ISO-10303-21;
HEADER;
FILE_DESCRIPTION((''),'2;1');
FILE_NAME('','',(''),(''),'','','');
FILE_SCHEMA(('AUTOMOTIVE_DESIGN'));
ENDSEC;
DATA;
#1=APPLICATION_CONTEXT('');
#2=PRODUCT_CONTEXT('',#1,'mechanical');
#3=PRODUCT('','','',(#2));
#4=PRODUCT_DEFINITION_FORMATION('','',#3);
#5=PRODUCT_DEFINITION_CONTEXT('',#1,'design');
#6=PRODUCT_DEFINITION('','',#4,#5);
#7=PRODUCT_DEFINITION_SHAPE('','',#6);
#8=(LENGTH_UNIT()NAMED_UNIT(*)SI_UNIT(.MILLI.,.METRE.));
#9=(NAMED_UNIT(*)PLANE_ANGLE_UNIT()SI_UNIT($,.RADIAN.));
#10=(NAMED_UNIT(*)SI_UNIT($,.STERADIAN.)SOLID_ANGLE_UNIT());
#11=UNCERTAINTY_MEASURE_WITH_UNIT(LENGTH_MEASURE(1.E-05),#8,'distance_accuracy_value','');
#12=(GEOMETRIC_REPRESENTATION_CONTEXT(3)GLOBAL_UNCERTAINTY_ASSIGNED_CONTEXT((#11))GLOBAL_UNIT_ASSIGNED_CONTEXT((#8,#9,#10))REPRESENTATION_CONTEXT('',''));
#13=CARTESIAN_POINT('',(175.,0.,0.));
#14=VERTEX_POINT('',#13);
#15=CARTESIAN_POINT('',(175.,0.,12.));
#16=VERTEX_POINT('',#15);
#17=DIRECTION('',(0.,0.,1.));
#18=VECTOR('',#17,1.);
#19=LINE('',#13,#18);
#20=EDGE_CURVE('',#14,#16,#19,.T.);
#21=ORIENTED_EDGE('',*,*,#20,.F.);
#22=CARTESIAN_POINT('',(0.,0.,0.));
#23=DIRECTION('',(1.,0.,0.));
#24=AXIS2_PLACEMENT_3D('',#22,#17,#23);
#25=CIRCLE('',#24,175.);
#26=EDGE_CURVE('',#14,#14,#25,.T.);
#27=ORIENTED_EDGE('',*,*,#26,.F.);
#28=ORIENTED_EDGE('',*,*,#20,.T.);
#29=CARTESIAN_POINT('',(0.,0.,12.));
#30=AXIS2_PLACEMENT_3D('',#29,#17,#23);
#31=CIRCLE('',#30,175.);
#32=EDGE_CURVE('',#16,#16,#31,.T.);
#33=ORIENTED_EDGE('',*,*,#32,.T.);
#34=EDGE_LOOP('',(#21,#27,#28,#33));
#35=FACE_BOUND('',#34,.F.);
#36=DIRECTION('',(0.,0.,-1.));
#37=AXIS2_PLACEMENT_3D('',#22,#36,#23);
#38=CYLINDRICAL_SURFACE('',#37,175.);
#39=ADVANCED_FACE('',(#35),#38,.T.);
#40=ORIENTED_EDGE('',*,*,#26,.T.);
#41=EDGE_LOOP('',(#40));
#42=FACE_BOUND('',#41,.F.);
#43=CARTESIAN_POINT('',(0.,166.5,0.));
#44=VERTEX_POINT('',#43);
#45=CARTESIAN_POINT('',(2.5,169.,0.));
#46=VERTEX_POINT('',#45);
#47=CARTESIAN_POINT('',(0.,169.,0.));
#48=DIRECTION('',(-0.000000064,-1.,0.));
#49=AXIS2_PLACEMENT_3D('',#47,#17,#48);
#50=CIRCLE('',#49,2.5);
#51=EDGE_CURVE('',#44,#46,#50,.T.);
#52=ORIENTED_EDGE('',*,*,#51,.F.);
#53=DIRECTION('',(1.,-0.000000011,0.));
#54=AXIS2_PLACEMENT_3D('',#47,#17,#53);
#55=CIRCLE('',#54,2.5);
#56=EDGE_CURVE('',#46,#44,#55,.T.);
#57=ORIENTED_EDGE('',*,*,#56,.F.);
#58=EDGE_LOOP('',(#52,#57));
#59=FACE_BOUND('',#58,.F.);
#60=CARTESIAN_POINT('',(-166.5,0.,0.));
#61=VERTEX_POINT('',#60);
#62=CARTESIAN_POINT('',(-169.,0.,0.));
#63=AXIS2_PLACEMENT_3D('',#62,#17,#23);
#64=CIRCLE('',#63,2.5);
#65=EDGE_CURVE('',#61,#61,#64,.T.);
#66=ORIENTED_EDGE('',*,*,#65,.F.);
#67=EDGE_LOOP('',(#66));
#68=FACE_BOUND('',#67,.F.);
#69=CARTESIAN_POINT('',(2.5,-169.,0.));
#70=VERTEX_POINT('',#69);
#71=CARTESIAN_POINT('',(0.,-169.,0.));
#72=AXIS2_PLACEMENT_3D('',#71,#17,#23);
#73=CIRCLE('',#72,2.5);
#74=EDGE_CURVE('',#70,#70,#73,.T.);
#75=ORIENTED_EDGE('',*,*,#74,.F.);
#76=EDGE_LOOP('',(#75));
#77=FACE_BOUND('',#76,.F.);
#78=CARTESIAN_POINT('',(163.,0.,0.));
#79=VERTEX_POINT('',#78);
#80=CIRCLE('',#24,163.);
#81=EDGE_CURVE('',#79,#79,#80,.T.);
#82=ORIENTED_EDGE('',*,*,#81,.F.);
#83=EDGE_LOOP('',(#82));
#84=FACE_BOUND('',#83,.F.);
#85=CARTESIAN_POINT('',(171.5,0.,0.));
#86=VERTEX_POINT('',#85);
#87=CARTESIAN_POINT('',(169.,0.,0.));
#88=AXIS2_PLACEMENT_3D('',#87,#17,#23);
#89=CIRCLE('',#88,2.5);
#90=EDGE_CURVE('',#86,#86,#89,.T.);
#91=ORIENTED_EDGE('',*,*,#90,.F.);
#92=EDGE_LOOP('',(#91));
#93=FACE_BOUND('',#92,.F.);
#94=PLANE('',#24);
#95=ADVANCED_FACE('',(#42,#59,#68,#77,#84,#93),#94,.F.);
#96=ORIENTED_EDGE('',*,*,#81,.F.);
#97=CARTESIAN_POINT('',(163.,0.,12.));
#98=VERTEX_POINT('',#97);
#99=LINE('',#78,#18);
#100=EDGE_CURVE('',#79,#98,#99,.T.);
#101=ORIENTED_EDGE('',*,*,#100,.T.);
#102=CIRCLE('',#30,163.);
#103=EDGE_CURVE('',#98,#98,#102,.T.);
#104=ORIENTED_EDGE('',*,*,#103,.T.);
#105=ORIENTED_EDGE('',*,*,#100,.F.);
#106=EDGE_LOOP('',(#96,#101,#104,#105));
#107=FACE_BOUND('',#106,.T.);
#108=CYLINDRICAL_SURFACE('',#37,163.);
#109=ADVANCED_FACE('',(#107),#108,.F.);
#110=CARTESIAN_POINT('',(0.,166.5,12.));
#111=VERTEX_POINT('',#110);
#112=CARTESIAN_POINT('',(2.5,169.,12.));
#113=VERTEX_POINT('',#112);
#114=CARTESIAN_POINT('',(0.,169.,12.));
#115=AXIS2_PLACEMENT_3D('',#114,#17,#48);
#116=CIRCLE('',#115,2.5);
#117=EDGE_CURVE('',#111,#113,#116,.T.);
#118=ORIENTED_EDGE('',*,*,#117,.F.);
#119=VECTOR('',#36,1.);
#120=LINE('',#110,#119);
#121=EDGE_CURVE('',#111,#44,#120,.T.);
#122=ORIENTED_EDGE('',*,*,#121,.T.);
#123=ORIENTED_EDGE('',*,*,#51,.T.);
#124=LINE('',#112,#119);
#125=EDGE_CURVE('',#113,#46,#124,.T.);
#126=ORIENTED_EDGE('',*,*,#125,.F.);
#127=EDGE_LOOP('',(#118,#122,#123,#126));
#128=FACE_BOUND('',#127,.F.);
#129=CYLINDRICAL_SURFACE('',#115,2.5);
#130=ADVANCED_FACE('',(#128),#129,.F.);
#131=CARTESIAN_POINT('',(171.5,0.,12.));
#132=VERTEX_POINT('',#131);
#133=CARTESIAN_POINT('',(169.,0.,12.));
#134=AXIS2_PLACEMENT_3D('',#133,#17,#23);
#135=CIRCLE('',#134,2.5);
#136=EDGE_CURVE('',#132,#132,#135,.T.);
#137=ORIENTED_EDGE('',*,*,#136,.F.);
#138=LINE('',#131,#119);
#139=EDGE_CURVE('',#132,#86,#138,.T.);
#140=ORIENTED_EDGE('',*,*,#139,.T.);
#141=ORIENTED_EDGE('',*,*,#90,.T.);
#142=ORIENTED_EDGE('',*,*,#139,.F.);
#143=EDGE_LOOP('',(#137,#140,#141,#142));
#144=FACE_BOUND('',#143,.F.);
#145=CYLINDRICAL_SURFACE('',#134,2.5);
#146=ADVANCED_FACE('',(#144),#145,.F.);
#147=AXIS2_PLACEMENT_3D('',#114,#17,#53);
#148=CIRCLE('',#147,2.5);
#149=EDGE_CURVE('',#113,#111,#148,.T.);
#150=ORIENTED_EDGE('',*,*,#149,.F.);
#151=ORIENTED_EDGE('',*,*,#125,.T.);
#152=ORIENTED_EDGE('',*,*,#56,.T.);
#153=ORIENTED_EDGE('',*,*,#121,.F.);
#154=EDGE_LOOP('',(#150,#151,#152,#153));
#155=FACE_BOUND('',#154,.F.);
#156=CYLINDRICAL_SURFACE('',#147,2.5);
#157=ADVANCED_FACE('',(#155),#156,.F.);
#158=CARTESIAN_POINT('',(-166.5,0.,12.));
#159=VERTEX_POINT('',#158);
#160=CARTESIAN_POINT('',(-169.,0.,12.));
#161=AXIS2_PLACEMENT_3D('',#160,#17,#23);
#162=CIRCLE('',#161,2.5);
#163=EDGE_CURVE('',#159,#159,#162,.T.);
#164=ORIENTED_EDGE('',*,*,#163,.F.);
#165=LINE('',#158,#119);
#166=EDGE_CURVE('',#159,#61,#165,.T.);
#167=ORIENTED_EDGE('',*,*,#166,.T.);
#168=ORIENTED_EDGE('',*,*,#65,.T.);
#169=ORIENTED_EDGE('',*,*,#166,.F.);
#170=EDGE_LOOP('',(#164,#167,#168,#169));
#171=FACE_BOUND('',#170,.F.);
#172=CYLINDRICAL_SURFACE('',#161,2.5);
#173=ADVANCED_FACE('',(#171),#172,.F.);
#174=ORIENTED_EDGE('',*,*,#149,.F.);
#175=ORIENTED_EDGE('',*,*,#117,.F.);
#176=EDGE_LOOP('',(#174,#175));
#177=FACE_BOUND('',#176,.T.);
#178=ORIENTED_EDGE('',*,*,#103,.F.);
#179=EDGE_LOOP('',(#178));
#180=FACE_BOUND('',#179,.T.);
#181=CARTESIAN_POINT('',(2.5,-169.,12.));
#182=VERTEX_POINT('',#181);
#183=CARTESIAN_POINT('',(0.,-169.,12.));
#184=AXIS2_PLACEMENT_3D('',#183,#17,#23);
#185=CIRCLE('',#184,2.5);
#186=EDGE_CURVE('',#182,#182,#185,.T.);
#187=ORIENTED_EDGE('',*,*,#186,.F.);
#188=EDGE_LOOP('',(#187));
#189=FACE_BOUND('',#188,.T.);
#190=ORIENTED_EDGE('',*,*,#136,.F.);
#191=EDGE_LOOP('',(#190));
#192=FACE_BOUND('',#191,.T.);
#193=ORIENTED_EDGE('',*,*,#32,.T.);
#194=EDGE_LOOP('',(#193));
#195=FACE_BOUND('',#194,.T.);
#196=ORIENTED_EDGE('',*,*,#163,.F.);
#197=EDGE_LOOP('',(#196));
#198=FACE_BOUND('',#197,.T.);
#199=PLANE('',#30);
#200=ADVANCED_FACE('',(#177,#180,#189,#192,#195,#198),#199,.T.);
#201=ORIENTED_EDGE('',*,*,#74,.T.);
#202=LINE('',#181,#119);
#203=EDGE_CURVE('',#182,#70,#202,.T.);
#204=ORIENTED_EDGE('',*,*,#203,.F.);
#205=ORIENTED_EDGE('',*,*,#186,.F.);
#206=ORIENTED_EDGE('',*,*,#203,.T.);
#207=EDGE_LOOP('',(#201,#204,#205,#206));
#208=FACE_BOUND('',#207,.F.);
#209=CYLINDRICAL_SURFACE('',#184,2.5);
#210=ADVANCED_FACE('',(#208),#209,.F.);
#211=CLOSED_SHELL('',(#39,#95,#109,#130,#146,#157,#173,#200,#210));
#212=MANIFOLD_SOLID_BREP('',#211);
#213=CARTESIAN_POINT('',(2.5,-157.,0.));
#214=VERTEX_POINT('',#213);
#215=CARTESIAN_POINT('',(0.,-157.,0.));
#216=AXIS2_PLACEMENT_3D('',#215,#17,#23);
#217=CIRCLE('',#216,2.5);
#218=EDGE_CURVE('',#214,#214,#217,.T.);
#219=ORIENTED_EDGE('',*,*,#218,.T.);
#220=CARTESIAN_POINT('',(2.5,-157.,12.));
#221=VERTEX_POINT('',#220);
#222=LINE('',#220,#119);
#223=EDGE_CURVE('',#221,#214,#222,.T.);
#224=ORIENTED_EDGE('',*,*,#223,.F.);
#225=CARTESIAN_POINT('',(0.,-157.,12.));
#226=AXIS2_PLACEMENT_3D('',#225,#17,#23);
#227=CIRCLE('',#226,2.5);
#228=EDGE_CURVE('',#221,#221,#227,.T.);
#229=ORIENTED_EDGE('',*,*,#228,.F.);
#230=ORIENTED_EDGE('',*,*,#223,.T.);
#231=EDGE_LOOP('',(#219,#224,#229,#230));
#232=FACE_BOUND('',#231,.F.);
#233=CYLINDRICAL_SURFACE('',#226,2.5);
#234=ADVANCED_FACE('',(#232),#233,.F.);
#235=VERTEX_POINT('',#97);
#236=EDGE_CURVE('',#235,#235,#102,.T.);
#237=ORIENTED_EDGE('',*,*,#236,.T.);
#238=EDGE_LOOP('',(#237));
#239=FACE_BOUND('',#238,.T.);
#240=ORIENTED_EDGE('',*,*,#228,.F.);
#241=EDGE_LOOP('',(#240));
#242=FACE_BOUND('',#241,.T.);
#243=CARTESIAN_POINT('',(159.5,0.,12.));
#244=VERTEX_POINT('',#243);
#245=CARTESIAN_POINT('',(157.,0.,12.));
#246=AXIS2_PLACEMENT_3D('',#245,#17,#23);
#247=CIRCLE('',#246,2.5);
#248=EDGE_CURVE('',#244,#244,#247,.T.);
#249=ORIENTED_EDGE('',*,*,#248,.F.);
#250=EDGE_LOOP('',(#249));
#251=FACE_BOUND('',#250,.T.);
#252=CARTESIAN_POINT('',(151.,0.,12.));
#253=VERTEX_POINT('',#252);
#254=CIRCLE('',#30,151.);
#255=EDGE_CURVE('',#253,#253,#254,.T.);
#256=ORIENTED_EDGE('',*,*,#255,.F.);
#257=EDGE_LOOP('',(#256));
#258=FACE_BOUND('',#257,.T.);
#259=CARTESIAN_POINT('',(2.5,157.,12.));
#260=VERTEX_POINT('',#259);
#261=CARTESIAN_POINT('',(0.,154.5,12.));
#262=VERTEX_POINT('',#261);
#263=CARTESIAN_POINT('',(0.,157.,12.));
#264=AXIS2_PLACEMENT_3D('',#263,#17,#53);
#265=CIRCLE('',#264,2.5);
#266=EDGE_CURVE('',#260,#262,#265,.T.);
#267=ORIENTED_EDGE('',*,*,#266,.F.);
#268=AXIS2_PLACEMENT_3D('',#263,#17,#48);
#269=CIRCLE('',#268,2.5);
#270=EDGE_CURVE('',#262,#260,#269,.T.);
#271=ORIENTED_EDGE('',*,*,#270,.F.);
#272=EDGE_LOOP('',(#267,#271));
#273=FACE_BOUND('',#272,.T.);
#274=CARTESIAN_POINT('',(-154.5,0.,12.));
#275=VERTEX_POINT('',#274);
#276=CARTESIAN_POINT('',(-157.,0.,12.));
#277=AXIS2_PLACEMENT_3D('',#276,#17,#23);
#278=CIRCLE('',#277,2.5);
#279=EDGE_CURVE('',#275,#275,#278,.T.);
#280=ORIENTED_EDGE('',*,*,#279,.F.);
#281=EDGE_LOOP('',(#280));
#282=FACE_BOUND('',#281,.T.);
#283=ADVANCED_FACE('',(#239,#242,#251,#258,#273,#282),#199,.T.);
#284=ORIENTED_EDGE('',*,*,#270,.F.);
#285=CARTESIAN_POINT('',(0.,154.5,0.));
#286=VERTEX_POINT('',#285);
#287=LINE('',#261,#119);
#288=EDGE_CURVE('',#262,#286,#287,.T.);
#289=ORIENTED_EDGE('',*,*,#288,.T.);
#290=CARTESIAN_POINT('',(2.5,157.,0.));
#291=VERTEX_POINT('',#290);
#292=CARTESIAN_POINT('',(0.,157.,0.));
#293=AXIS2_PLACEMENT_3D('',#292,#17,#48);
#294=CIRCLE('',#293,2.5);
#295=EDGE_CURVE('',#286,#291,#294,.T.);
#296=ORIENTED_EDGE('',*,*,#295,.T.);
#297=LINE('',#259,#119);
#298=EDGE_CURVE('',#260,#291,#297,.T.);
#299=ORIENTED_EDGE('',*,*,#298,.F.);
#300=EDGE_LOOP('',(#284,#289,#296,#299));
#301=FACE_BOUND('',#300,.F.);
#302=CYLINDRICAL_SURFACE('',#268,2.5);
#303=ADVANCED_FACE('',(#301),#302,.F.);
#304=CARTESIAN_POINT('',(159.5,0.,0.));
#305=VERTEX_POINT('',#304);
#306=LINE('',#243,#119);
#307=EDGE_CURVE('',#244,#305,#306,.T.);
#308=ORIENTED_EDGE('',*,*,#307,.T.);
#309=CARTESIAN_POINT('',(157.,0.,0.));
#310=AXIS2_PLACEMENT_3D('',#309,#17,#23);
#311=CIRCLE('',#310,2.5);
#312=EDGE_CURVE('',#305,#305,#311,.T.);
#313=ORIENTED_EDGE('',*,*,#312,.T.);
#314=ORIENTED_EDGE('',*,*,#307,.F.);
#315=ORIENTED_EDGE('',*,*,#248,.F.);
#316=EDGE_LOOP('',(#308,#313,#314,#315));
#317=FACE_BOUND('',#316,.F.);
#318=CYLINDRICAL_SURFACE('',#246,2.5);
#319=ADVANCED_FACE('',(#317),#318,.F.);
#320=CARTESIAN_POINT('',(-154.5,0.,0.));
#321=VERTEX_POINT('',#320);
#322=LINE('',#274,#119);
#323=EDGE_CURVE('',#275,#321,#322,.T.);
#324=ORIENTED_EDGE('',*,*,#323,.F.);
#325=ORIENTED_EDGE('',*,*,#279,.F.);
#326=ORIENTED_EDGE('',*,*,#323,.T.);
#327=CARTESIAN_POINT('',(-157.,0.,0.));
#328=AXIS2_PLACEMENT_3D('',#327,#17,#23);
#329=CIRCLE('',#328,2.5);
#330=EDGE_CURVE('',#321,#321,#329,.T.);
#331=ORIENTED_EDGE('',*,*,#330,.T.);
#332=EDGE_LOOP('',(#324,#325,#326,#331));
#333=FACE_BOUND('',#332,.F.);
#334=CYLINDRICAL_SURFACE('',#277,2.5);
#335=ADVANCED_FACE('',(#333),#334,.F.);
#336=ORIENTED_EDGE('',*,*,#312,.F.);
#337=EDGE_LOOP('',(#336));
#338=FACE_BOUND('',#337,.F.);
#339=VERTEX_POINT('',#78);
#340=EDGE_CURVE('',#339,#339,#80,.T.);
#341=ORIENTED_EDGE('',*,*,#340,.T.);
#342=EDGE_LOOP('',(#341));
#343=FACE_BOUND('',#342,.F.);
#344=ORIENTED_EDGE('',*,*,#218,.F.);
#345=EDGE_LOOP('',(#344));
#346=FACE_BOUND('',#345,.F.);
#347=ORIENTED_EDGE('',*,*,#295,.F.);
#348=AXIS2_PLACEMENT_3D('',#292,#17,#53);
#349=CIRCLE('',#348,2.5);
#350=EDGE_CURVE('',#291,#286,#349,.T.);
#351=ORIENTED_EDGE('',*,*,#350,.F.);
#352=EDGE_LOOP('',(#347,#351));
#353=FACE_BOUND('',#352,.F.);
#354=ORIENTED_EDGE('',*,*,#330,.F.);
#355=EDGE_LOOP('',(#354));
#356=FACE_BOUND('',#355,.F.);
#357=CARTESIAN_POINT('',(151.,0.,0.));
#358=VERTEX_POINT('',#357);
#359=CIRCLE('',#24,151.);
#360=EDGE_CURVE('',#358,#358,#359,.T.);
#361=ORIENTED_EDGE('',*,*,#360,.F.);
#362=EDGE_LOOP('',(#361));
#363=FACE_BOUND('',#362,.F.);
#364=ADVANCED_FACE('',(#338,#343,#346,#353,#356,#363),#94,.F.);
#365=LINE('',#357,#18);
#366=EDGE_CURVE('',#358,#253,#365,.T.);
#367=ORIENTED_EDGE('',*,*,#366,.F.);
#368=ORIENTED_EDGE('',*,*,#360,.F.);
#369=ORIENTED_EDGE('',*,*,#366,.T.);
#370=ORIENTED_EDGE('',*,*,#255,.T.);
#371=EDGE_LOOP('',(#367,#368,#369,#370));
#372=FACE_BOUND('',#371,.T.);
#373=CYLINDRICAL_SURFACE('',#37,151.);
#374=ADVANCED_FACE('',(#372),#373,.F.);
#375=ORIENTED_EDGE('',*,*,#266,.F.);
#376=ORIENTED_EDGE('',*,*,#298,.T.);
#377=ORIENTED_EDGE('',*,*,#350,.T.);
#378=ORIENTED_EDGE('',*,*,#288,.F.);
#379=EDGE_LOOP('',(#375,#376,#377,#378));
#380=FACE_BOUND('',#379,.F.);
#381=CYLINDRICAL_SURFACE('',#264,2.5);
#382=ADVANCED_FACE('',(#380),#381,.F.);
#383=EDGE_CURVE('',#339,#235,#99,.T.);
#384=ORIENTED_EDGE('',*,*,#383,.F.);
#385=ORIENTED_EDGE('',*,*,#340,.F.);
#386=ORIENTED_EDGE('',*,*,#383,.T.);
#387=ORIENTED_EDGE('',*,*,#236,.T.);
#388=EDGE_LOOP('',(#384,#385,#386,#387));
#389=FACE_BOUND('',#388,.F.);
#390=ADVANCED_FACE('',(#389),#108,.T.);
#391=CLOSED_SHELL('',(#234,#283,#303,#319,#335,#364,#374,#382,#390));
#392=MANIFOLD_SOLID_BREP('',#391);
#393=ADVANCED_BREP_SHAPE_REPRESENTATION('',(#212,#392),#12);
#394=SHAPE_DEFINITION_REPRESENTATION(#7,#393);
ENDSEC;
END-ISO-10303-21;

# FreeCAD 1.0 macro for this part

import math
import FreeCAD as App
import Part
import Sketcher
from FreeCAD import Vector
Q = App.Units.Quantity

doc = App.newDocument("Part")
body = doc.addObject("PartDesign::Body", "Body")

# Sketch on XY plane
sketch1 = doc.addObject("Sketcher::SketchObject", "Sketch")
body.addObject(sketch1)
sketch1.AttachmentSupport = (doc.XY_Plane, [""])
sketch1.MapMode = "FlatFace"
sketch1.addGeometry([
    Part.Circle(Vector(0, 0, 0), Vector(0, 0, 1), 175),
    Part.Circle(Vector(0, 0, 0), Vector(0, 0, 1), 163),
], False)
sketch1.addConstraint([
    Sketcher.Constraint("Coincident", 0, 3, -1, 1),
    Sketcher.Constraint("Coincident", 1, 3, -1, 1),
    Sketcher.Constraint("Diameter", 0, Q("350 mm")),
    Sketcher.Constraint("Diameter", 1, Q("326 mm")),
])
pad1 = doc.addObject("PartDesign::Pad", "Pad")
body.addObject(pad1)
pad1.Profile = sketch1
pad1.Length = 12

# Sketch on XY plane
sketch2 = doc.addObject("Sketcher::SketchObject", "Sketch001")
body.addObject(sketch2)
sketch2.AttachmentSupport = (doc.XY_Plane, [""])
sketch2.MapMode = "FlatFace"
sketch2.AttachmentOffset = App.Placement(Vector(0, 0, 12), App.Rotation())
sketch2.addGeometry([
    Part.ArcOfCircle(Part.Circle(Vector(0, 169, 0), Vector(0, 0, 1), 2.5), math.radians(-90), math.radians(0)),  # 0
    Part.ArcOfCircle(Part.Circle(Vector(0, 169, 0), Vector(0, 0, 1), 2.5), math.radians(0), math.radians(270)),  # 1
    Part.Circle(Vector(-169, 0, 0), Vector(0, 0, 1), 2.5),  # 2
    Part.Circle(Vector(0, -169, 0), Vector(0, 0, 1), 2.5),  # 3
    Part.Circle(Vector(169, 0, 0), Vector(0, 0, 1), 2.5),  # 4
], False)
sketch2.addConstraint([
    Sketcher.Constraint("Tangent", 0, 1, 1, 2),
    Sketcher.Constraint("Coincident", 1, 1, 0, 2),
    Sketcher.Constraint("Equal", 1, 2),
    Sketcher.Constraint("Equal", 2, 3),
    Sketcher.Constraint("Equal", 3, 4),
    Sketcher.Constraint("Symmetric", 0, 3, 3, 3, -1, 1),
    Sketcher.Constraint("Symmetric", 2, 3, 4, 3, -1, 1),
    Sketcher.Constraint("PointOnObject", 0, 3, -2),
    Sketcher.Constraint("PointOnObject", 2, 3, -1),
    Sketcher.Constraint("PointOnObject", 0, 1, -2),
    Sketcher.Constraint("Horizontal", 0, 3, 1, 1),
    Sketcher.Constraint("Diameter", 2, Q("5 mm")),
    Sketcher.Constraint("DistanceY", -1, 1, 0, 3, Q("169 mm")),
    Sketcher.Constraint("DistanceX", 2, 3, -1, 1, Q("169 mm")),
])
pocket1 = doc.addObject("PartDesign::Pocket", "Pocket")
body.addObject(pocket1)
pocket1.Profile = sketch2
pocket1.Length = 12
body2 = doc.addObject("PartDesign::Body", "Body001")

# Sketch on XY plane
sketch3 = doc.addObject("Sketcher::SketchObject", "Sketch002")
body2.addObject(sketch3)
sketch3.AttachmentSupport = (doc.getObject("XY_Plane001"), [""])
sketch3.MapMode = "FlatFace"
sketch3.addGeometry([
    Part.Circle(Vector(0, 0, 0), Vector(0, 0, 1), 163),
    Part.Circle(Vector(0, 0, 0), Vector(0, 0, 1), 151),
], False)
sketch3.addConstraint([
    Sketcher.Constraint("Coincident", 0, 3, -1, 1),
    Sketcher.Constraint("Coincident", 1, 3, -1, 1),
    Sketcher.Constraint("Diameter", 0, Q("326 mm")),
    Sketcher.Constraint("Diameter", 1, Q("302 mm")),
])
pad2 = doc.addObject("PartDesign::Pad", "Pad001")
body2.addObject(pad2)
pad2.Profile = sketch3
pad2.Length = 12

# Sketch on XY plane
sketch4 = doc.addObject("Sketcher::SketchObject", "Sketch003")
body2.addObject(sketch4)
sketch4.AttachmentSupport = (doc.getObject("XY_Plane001"), [""])
sketch4.MapMode = "FlatFace"
sketch4.AttachmentOffset = App.Placement(Vector(0, 0, 12), App.Rotation())
sketch4.addGeometry([
    Part.ArcOfCircle(Part.Circle(Vector(0, 157, 0), Vector(0, 0, 1), 2.5), math.radians(-90), math.radians(0)),  # 0
    Part.ArcOfCircle(Part.Circle(Vector(0, 157, 0), Vector(0, 0, 1), 2.5), math.radians(0), math.radians(270)),  # 1
    Part.Circle(Vector(-157, 0, 0), Vector(0, 0, 1), 2.5),  # 2
    Part.Circle(Vector(0, -157, 0), Vector(0, 0, 1), 2.5),  # 3
    Part.Circle(Vector(157, 0, 0), Vector(0, 0, 1), 2.5),  # 4
], False)
sketch4.addConstraint([
    Sketcher.Constraint("Tangent", 0, 1, 1, 2),
    Sketcher.Constraint("Coincident", 1, 1, 0, 2),
    Sketcher.Constraint("Equal", 1, 2),
    Sketcher.Constraint("Equal", 2, 3),
    Sketcher.Constraint("Equal", 3, 4),
    Sketcher.Constraint("Symmetric", 0, 3, 3, 3, -1, 1),
    Sketcher.Constraint("Symmetric", 2, 3, 4, 3, -1, 1),
    Sketcher.Constraint("PointOnObject", 0, 3, -2),
    Sketcher.Constraint("PointOnObject", 2, 3, -1),
    Sketcher.Constraint("PointOnObject", 0, 1, -2),
    Sketcher.Constraint("Horizontal", 0, 3, 1, 1),
    Sketcher.Constraint("Diameter", 2, Q("5 mm")),
    Sketcher.Constraint("DistanceY", -1, 1, 0, 3, Q("157 mm")),
    Sketcher.Constraint("DistanceX", 2, 3, -1, 1, Q("157 mm")),
])
pocket2 = doc.addObject("PartDesign::Pocket", "Pocket001")
body2.addObject(pocket2)
pocket2.Profile = sketch4
pocket2.Length = 12

doc.recompute()
